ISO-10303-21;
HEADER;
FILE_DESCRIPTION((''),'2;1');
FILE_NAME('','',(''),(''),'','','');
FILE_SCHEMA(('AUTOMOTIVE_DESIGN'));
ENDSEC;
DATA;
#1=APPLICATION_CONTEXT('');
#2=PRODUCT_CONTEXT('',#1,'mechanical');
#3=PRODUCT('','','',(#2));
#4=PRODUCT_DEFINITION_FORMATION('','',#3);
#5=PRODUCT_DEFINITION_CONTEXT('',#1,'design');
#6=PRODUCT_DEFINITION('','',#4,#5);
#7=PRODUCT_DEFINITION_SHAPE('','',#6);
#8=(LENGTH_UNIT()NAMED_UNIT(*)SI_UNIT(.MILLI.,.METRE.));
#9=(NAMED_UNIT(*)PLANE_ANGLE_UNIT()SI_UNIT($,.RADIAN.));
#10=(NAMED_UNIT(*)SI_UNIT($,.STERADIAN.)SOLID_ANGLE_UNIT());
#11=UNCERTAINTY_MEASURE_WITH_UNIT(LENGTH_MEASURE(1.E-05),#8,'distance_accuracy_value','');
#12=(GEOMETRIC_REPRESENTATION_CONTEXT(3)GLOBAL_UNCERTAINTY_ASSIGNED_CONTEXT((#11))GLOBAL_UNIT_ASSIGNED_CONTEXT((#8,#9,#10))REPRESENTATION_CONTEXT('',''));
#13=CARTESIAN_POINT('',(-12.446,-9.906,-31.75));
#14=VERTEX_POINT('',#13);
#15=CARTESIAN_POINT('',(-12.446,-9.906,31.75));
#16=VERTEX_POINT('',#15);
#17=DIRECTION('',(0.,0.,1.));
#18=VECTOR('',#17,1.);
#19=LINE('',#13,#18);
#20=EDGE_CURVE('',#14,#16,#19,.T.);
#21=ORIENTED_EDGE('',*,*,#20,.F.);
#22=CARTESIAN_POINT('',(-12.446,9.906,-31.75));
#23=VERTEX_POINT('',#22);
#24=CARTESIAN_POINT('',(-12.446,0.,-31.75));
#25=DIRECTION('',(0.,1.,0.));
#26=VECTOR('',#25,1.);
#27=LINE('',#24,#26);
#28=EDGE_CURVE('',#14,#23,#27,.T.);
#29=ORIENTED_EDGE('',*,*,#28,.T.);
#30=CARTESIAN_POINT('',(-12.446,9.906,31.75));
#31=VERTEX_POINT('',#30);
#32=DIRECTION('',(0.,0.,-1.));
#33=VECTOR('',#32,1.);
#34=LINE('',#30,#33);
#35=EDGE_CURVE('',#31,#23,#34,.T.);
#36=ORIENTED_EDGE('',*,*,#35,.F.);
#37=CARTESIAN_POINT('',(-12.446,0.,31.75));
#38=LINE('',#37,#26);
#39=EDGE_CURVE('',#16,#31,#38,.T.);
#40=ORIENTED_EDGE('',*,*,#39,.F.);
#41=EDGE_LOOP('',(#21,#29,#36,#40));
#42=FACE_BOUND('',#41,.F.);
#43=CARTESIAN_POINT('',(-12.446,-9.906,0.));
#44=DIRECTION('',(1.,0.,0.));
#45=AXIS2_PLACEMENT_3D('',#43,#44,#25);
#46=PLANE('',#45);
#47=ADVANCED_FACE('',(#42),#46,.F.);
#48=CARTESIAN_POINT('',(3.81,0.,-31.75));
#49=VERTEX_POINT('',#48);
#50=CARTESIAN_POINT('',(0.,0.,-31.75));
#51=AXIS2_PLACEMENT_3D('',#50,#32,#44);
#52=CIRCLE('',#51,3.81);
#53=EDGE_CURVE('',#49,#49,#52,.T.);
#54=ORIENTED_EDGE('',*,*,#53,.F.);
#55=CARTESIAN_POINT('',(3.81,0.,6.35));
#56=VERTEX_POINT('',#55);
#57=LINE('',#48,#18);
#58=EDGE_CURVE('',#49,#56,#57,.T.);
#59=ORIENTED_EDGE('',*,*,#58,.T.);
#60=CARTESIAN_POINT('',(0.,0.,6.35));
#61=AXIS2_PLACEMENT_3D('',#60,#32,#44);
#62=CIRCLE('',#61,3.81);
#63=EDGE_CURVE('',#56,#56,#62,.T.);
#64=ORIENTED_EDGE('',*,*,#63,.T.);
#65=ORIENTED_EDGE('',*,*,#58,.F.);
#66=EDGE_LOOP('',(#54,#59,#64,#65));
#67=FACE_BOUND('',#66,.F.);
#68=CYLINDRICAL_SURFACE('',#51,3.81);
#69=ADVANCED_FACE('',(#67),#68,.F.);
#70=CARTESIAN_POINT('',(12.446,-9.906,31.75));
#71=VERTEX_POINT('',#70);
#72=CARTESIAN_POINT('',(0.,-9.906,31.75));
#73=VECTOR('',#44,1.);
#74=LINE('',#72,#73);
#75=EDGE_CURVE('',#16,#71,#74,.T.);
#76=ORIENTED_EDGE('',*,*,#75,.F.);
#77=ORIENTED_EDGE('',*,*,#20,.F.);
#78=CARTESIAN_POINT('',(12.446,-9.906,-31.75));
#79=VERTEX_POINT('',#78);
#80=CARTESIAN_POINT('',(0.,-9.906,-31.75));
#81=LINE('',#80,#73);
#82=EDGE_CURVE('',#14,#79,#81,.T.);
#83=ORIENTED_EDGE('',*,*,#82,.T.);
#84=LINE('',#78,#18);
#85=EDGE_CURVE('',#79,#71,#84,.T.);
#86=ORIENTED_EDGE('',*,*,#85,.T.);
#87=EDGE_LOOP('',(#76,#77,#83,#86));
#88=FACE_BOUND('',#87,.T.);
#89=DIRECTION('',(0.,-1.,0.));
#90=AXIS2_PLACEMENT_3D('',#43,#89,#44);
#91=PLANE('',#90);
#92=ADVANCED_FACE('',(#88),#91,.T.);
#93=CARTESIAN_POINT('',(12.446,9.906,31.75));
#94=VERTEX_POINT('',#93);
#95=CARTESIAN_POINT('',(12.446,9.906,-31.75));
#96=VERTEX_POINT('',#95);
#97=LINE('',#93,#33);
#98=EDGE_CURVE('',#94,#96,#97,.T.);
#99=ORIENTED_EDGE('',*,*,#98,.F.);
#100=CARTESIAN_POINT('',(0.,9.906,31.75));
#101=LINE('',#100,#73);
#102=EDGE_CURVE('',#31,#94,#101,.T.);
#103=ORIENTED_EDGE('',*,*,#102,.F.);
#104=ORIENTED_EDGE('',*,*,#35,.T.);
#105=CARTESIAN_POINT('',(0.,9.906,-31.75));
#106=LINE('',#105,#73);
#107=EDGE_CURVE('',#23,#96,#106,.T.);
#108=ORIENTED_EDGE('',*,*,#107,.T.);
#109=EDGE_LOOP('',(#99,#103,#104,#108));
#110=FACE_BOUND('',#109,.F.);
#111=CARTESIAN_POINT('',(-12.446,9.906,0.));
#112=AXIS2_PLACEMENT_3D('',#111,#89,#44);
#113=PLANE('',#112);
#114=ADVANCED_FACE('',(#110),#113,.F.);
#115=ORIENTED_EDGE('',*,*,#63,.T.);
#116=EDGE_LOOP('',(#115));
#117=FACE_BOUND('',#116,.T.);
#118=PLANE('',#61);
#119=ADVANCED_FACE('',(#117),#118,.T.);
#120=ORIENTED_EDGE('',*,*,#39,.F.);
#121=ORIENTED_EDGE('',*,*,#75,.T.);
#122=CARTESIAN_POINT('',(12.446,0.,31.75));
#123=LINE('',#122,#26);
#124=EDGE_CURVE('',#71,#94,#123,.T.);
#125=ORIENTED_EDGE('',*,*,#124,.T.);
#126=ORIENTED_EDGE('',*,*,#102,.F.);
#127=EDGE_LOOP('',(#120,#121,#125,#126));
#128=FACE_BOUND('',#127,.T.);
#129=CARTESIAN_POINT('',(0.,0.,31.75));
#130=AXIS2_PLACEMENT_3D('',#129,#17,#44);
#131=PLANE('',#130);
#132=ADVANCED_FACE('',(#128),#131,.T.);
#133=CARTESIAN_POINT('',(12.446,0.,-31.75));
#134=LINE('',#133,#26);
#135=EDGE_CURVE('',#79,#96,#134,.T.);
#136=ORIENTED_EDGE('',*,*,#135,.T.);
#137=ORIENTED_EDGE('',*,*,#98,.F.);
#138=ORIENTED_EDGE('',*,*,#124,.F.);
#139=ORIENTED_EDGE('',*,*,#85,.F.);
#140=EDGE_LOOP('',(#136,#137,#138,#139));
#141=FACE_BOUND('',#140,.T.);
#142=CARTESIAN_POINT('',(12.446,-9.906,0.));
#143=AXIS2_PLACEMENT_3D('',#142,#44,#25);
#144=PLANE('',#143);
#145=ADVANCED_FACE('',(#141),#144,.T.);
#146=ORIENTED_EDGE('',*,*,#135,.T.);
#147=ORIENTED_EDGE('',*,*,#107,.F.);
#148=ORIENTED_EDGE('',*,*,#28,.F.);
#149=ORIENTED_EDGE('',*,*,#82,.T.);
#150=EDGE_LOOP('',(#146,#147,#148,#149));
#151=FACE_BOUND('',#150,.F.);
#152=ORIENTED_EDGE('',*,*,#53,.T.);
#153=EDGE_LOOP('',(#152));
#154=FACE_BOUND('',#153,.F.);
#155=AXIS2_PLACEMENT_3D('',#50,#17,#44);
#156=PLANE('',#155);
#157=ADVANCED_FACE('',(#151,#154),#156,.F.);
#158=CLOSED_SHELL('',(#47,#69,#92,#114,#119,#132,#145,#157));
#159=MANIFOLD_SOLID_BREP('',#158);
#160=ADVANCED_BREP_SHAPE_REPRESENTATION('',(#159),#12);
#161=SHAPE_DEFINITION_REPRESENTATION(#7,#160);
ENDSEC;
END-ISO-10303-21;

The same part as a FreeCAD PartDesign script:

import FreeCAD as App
import Part
import Sketcher
Q = App.Units.Quantity


def add_polygon(sketch, points):
    """Adds a closed chain of lines whose ends are joined by coincident constraints."""
    first, n = sketch.GeometryCount, len(points)
    for a, b in zip(points, points[1:] + points[:1]):
        sketch.addGeometry(Part.LineSegment(App.Vector(*a, 0), App.Vector(*b, 0)), False)
    for i in range(n):
        sketch.addConstraint(Sketcher.Constraint("Coincident", first + i, 2, first + (i + 1) % n, 1))

doc = App.newDocument("Part")
params = doc.addObject("Spreadsheet::Sheet", "Params")
for row, (alias, value) in enumerate([
    ("sketch1_width", "0.98 in"),
    ("sketch1_height", "0.78 in"),
    ("pad1_length", "2.5 in"),
    ("sketch2_diameter", "0.3 in"),
    ("pocket1_length", "1.5 in"),
], start=1):
    params.set(f"A{row}", alias)
    params.set(f"B{row}", "=" + value)
    params.setAlias(f"B{row}", alias)

body = doc.addObject("PartDesign::Body", "Body")

sketch1 = body.newObject("Sketcher::SketchObject", "Sketch")
sketch1.AttachmentSupport = (doc.getObject("XY_Plane"), [""])
sketch1.MapMode = "FlatFace"
add_polygon(sketch1, [(-12.446, 9.906), (-12.446, -9.906), (12.446, -9.906), (12.446, 9.906)])
sketch1.addConstraint([
    Sketcher.Constraint("Vertical", 0),
    Sketcher.Constraint("Horizontal", 1),
    Sketcher.Constraint("Vertical", 2),
    Sketcher.Constraint("Horizontal", 3),
    Sketcher.Constraint("Symmetric", 0, 2, 2, 2, -1, 1),
    Sketcher.Constraint("DistanceX", 1, 1, 1, 2, Q("0.98 in")),
    Sketcher.Constraint("DistanceY", 0, 2, 0, 1, Q("0.78 in")),
])
sketch1.setExpression("Constraints[9]", "Params.sketch1_width")
sketch1.setExpression("Constraints[10]", "Params.sketch1_height")
pad1 = body.newObject("PartDesign::Pad", "Pad")
pad1.Profile = sketch1
pad1.setExpression("Length", "Params.pad1_length")
pad1.Midplane = True

sketch2 = body.newObject("Sketcher::SketchObject", "Sketch001")
sketch2.AttachmentSupport = (doc.getObject("XY_Plane"), [""])
sketch2.MapMode = "FlatFace"
sketch2.AttachmentOffset = App.Placement(App.Vector(0, 0, -1.25 * 25.4), App.Rotation())
sketch2.addGeometry(Part.Circle(App.Vector(0, 0, 0), App.Vector(0, 0, 1), 3.81), False)
sketch2.addConstraint([
    Sketcher.Constraint("Coincident", 0, 3, -1, 1),
    Sketcher.Constraint("Diameter", 0, Q("0.3 in")),
])
sketch2.setExpression("Constraints[1]", "Params.sketch2_diameter")
pocket1 = body.newObject("PartDesign::Pocket", "Pocket")
pocket1.Profile = sketch2
pocket1.setExpression("Length", "Params.pocket1_length")
pocket1.Reversed = True

doc.recompute()
